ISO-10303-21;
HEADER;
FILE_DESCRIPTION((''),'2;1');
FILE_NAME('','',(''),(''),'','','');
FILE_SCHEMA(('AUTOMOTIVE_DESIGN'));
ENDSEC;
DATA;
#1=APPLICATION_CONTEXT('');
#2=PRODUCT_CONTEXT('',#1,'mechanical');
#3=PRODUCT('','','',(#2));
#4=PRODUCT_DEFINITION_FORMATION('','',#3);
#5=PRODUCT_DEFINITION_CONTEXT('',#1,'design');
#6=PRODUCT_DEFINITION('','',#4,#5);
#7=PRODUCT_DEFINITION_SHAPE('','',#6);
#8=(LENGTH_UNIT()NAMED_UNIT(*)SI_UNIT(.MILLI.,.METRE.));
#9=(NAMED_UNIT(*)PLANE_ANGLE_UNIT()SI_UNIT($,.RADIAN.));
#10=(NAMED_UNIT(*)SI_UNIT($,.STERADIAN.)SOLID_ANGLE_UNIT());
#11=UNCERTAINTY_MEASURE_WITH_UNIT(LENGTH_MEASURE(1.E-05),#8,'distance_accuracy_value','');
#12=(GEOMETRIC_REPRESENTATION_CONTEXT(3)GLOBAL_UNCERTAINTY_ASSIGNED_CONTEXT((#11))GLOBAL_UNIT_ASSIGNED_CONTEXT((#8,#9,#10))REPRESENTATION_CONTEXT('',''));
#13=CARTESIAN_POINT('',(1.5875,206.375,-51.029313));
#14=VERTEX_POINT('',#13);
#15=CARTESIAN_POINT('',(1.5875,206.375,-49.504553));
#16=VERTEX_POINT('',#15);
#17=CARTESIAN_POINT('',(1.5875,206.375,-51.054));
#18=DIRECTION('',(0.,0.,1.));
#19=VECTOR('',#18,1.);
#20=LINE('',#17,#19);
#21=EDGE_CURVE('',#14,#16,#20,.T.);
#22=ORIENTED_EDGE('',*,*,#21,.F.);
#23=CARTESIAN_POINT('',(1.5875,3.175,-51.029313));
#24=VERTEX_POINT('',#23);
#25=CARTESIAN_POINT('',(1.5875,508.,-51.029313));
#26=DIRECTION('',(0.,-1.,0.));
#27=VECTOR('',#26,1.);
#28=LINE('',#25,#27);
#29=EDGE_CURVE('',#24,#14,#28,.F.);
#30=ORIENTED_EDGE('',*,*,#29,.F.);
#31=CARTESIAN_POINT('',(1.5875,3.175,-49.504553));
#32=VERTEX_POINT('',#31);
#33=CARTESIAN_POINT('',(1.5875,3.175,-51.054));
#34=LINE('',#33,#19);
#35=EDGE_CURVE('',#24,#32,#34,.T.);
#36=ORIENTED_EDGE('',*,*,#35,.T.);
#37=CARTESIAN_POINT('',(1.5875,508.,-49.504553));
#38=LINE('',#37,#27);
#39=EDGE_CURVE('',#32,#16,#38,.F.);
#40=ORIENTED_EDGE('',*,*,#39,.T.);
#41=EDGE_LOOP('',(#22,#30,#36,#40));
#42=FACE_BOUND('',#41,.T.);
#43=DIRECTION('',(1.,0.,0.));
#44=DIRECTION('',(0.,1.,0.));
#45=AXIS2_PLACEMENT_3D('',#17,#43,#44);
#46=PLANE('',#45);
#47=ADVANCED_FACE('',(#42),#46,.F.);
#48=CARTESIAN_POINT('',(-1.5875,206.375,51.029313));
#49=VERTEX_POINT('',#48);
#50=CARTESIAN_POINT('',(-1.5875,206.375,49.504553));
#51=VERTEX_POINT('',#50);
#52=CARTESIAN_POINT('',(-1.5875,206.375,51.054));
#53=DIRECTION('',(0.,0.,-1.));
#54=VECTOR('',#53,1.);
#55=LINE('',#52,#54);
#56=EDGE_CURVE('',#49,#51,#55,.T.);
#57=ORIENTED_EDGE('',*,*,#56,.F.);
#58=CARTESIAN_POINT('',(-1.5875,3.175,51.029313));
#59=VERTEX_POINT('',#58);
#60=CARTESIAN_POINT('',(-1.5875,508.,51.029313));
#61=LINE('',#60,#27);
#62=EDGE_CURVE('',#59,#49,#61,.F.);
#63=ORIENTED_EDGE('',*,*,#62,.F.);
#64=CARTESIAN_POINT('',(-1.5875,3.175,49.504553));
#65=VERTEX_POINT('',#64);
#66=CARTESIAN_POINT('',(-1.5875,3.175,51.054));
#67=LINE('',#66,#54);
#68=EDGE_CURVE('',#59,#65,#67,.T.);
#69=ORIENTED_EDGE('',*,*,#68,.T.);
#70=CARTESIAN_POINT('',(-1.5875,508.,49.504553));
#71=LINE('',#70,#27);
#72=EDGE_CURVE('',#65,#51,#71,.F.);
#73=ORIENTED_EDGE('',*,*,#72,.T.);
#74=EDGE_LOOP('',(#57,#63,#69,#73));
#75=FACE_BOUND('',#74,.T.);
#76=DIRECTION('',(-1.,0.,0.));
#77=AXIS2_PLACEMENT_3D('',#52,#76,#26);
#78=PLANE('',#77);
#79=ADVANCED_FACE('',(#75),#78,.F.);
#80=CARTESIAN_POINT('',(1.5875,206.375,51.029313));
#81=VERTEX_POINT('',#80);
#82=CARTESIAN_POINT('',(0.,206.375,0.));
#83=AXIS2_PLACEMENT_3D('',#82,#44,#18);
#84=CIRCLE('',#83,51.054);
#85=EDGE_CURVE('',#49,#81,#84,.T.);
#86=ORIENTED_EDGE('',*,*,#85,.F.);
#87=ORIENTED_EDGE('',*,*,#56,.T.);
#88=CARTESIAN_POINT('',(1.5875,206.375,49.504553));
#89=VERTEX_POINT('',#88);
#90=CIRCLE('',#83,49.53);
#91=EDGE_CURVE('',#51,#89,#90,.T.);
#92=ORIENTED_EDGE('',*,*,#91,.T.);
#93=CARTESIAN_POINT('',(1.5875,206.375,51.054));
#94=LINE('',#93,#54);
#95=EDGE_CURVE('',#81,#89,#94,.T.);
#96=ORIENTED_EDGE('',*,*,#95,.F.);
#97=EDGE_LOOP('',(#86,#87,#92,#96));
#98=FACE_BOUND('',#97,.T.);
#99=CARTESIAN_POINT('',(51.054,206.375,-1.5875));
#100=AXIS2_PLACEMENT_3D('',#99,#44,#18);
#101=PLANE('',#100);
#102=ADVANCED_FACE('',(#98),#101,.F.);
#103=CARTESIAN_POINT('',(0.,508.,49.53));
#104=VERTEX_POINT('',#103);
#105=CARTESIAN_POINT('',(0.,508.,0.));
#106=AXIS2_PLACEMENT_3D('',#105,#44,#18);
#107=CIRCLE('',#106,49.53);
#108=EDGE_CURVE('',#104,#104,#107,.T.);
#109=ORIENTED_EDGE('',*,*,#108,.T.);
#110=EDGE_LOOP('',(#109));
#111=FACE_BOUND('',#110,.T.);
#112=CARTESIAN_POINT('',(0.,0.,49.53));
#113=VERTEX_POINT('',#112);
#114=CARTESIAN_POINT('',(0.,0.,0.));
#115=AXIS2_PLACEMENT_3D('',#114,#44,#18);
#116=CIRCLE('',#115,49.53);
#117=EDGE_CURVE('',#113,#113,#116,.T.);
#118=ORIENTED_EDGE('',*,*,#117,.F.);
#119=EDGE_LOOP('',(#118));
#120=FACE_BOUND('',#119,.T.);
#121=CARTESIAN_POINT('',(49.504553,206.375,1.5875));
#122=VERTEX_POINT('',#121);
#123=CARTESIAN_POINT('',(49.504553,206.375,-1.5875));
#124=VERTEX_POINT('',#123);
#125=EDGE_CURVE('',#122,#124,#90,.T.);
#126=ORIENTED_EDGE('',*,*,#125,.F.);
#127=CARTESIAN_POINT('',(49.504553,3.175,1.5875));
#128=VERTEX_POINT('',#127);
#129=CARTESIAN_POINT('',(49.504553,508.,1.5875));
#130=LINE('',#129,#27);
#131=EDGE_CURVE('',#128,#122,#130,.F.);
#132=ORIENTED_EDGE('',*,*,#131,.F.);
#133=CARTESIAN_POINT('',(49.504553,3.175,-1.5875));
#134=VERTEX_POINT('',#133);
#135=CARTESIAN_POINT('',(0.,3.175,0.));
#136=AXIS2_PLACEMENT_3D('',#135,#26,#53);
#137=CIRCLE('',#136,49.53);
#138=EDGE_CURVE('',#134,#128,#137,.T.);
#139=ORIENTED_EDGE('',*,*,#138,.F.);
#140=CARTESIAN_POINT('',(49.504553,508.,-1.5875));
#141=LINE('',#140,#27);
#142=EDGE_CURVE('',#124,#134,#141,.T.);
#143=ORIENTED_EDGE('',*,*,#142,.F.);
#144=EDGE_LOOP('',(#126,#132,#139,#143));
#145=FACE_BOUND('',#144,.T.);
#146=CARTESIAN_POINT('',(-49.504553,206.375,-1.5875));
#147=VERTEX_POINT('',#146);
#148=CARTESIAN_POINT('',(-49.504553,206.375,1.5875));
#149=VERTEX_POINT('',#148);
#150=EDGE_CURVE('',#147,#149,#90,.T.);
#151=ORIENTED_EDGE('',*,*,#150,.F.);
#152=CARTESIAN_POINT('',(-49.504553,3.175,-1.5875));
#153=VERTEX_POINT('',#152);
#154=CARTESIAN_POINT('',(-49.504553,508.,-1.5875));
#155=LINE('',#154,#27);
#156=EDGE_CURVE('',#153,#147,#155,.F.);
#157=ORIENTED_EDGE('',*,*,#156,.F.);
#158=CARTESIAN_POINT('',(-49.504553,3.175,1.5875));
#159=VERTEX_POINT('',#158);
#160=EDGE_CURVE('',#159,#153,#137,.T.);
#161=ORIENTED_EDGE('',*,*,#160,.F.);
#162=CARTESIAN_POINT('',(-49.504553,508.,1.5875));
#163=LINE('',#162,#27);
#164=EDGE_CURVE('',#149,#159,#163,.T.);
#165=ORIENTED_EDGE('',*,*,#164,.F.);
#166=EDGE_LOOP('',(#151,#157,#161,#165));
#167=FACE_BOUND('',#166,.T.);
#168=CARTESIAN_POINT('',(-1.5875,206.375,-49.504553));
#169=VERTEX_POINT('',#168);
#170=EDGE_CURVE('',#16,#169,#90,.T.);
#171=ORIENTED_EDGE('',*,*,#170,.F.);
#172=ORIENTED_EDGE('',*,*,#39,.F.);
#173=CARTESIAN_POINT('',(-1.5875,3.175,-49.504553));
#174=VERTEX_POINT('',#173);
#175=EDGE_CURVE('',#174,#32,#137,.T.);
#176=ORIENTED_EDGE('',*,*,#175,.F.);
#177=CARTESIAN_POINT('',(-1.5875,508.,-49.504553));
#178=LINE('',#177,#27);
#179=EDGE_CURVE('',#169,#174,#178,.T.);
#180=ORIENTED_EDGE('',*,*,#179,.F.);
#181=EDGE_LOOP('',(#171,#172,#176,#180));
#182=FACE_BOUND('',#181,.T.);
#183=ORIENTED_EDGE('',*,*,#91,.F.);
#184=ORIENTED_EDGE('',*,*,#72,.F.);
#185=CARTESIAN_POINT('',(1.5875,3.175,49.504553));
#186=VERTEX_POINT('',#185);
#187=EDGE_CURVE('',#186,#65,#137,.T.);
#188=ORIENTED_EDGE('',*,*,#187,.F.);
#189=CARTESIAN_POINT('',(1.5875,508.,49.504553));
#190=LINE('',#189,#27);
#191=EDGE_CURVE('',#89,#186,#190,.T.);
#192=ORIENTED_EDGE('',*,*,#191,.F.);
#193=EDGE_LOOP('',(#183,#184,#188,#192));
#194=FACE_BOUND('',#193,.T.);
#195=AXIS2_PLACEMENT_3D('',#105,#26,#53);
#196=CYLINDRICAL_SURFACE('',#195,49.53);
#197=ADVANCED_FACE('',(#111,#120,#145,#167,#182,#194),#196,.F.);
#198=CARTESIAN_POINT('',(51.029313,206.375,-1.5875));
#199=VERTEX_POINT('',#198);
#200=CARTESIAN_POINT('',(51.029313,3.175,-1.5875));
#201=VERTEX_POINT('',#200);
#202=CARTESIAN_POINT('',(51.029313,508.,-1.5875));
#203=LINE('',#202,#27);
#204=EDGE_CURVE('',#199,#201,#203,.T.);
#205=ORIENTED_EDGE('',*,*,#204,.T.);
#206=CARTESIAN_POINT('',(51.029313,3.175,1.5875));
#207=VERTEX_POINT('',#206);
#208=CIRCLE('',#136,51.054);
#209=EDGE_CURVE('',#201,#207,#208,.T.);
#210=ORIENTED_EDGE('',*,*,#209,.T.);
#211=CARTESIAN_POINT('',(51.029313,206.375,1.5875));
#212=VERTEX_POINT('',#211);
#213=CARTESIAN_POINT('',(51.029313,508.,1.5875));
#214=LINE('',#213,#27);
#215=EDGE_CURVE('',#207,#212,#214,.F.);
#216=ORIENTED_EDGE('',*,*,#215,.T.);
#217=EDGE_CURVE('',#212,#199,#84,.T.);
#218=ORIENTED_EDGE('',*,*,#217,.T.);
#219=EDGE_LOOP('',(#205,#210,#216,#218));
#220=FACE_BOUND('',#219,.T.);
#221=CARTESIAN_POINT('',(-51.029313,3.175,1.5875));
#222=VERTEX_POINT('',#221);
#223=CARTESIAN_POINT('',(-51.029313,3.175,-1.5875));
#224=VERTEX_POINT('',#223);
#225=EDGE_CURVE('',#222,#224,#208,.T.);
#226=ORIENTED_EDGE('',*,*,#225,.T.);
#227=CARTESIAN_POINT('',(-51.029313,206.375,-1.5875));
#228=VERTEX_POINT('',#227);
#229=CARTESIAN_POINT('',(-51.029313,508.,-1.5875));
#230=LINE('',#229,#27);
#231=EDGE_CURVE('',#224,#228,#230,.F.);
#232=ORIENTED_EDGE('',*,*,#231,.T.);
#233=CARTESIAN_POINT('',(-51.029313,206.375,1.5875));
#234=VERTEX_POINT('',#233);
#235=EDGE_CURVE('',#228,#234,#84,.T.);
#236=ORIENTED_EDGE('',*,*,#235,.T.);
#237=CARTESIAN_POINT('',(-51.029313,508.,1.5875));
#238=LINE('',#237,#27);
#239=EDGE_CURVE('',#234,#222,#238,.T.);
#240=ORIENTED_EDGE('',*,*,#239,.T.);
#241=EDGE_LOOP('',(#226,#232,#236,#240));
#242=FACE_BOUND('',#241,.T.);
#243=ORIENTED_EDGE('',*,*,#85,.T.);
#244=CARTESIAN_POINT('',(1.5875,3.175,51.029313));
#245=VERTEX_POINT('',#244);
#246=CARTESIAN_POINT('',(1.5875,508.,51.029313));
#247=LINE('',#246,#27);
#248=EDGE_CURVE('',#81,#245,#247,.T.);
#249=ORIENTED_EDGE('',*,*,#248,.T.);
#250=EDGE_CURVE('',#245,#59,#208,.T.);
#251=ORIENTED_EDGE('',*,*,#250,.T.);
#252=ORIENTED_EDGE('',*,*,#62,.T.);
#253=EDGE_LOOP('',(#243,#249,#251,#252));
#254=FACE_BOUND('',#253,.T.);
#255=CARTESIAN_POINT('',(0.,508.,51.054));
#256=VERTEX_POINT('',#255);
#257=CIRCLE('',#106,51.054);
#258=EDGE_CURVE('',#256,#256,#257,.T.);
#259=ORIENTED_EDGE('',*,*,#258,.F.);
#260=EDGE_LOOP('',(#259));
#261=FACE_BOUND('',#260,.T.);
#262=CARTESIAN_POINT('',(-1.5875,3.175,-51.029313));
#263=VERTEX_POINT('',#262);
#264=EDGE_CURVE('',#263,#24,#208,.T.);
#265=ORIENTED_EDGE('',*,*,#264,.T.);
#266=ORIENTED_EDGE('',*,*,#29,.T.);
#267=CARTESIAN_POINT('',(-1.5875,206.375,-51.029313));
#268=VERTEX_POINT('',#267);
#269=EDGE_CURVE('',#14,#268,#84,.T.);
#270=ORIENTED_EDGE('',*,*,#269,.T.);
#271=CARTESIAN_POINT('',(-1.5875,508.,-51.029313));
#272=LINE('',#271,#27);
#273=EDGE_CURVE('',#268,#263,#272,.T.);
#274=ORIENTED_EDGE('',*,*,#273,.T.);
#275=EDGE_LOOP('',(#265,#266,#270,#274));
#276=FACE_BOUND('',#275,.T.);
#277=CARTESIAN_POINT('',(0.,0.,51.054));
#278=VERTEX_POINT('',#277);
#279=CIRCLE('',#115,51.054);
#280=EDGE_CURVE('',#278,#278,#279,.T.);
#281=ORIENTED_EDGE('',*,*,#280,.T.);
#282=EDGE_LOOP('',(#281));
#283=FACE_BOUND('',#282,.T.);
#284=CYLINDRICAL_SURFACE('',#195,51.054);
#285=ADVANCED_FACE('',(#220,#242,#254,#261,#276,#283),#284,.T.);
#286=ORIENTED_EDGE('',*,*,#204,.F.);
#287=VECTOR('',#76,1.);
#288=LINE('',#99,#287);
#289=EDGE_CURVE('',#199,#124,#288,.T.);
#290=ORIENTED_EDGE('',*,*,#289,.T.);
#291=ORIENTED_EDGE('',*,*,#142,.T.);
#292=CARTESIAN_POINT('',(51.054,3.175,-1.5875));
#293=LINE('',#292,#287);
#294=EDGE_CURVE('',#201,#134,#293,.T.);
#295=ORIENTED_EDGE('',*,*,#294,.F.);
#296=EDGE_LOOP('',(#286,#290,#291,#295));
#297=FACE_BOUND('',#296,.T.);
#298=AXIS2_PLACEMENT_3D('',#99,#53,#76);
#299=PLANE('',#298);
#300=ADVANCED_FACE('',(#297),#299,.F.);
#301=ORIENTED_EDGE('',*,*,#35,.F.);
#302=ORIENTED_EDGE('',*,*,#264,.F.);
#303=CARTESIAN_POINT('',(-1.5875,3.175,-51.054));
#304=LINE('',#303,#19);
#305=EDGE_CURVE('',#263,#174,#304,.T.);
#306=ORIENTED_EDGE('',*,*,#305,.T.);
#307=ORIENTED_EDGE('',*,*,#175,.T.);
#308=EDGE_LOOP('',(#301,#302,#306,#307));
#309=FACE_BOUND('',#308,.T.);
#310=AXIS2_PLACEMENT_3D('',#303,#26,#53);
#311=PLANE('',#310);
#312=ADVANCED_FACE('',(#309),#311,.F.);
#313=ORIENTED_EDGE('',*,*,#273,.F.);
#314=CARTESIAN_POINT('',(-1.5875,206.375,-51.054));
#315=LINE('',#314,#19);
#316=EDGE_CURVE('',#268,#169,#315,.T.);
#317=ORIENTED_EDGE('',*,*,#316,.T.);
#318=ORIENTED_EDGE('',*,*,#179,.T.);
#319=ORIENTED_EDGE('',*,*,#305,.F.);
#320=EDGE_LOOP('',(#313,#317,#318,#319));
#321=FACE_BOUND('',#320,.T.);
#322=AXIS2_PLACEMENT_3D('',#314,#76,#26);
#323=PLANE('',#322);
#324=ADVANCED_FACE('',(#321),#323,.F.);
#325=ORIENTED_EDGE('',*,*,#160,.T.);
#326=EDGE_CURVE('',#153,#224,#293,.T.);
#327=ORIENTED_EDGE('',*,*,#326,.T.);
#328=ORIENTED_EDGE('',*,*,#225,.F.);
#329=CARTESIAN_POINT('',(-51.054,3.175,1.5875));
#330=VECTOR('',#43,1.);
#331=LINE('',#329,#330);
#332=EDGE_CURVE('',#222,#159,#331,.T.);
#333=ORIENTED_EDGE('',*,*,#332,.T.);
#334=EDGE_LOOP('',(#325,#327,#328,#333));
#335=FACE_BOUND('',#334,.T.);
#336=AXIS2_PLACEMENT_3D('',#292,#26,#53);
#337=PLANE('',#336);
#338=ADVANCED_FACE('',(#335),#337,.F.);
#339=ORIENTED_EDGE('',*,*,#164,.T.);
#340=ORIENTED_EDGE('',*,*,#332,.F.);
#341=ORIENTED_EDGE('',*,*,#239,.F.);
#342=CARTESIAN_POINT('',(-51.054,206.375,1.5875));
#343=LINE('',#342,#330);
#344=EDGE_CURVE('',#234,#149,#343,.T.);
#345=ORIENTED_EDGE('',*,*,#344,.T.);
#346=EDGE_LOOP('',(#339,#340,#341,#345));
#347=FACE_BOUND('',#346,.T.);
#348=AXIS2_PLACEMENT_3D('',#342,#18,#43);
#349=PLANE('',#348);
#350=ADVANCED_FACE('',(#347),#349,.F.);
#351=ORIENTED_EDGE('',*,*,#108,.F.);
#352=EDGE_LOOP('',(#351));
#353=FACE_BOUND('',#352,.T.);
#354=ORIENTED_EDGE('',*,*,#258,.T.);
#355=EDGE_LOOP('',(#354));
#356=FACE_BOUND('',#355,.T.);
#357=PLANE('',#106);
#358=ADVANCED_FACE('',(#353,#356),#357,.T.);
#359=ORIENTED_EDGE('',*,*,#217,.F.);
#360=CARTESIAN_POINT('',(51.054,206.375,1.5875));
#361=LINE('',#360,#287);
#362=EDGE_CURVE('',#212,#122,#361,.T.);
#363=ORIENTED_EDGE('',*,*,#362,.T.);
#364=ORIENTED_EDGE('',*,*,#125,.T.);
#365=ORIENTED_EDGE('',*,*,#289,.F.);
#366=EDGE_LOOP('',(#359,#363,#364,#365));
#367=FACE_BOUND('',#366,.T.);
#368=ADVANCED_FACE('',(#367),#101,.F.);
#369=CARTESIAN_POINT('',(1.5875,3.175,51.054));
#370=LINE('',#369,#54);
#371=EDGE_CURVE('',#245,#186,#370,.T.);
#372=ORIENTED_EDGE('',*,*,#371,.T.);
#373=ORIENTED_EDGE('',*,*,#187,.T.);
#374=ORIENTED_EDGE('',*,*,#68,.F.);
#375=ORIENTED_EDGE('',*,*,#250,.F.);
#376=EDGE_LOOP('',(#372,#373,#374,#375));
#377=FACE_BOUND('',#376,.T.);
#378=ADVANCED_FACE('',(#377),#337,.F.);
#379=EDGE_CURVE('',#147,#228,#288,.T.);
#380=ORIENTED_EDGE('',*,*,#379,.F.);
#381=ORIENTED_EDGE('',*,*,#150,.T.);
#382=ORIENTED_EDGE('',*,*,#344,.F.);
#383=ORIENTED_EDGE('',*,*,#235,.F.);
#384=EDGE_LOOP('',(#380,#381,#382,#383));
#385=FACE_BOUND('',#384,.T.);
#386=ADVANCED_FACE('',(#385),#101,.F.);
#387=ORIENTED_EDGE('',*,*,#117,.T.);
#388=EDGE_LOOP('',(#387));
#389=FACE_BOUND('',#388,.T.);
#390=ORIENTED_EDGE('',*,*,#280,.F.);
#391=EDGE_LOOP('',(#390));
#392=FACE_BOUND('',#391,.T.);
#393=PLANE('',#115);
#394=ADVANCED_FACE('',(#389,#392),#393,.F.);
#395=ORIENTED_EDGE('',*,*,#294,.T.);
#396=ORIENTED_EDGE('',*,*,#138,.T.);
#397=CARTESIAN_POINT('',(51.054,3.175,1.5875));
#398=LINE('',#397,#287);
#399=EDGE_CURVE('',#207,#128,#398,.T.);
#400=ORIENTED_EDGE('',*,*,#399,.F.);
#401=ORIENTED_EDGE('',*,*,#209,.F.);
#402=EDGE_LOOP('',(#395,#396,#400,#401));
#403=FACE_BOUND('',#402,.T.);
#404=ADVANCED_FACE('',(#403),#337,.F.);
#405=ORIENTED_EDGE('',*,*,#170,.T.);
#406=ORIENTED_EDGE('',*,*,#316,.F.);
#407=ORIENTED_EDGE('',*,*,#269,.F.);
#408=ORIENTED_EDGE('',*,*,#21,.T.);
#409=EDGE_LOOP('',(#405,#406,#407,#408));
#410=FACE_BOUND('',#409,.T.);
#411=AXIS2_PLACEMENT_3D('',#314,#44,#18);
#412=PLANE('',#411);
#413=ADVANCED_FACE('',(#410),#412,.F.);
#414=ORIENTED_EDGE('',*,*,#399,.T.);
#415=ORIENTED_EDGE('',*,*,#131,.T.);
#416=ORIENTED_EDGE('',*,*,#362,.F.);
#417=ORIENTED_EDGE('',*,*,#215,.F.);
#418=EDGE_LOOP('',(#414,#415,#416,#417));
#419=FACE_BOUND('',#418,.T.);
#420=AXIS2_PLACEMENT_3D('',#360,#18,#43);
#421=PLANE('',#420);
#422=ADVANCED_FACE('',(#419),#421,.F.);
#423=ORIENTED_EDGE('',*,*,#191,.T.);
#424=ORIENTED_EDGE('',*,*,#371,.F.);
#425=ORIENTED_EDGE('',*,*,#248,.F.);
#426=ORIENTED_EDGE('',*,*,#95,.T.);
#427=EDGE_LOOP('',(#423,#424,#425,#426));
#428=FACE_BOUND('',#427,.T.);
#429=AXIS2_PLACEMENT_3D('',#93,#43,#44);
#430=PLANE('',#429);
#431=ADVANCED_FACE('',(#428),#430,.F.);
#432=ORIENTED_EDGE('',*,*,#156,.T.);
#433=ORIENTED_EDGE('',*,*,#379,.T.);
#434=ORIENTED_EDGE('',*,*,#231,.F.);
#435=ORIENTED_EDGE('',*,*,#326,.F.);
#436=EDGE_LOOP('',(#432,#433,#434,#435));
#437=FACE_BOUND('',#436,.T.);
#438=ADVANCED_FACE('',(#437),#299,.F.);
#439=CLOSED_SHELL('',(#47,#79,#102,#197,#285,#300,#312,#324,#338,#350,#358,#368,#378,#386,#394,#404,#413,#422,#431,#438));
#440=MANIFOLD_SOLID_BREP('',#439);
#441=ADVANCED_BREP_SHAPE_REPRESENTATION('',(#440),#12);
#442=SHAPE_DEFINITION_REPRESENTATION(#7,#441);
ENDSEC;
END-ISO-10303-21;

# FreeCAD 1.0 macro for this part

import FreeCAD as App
import Part
import Sketcher

V = App.Vector
Q = App.Units.Quantity


def add_polygon(sketch, points):
    """Adds a closed chain of lines whose ends are joined by coincident constraints."""
    first, n = sketch.GeometryCount, len(points)
    for a, b in zip(points, points[1:] + points[:1]):
        sketch.addGeometry(Part.LineSegment(App.Vector(*a, 0), App.Vector(*b, 0)), False)
    for i in range(n):
        sketch.addConstraint(Sketcher.Constraint("Coincident", first + i, 2, first + (i + 1) % n, 1))

doc = App.newDocument("Part")
body = doc.addObject("PartDesign::Body", "Body")

# Sketch on XZ plane
sketch1 = body.newObject("Sketcher::SketchObject", "Sketch")
sketch1.AttachmentSupport = (doc.getObject("XZ_Plane"), [""])
sketch1.MapMode = "FlatFace"
sketch1.addGeometry([
    Part.Circle(V(0, 0, 0), V(0, 0, 1), 51.054),
    Part.Circle(V(0, 0, 0), V(0, 0, 1), 49.53),
], False)
sketch1.addConstraint([
    Sketcher.Constraint("Coincident", 0, 3, -1, 1),
    Sketcher.Constraint("Coincident", 1, 3, -1, 1),
    Sketcher.Constraint("Diameter", 1, Q("3.9 in")),
    Sketcher.Constraint("Diameter", 0, Q("4.02 in")),
])
pad1 = body.newObject("PartDesign::Pad", "Pad")
pad1.Profile = sketch1
pad1.Length = Q("20 in")
pad1.Reversed = True

# Sketch on XY plane
sketch2 = body.newObject("Sketcher::SketchObject", "Sketch001")
sketch2.AttachmentSupport = (doc.getObject("XY_Plane"), [""])
sketch2.MapMode = "FlatFace"
add_polygon(sketch2, [(-1.5875, 206.375), (-1.5875, 3.175), (1.5875, 3.175), (1.5875, 206.375)])  # lines 0-3
sketch2.addConstraint([
    Sketcher.Constraint("Vertical", 0),
    Sketcher.Constraint("Horizontal", 1),
    Sketcher.Constraint("Vertical", 2),
    Sketcher.Constraint("Horizontal", 3),
    Sketcher.Constraint("DistanceY", 0, 2, 0, 1, Q("8 in")),
    Sketcher.Constraint("DistanceX", 1, 1, 1, 2, Q("0.125 in")),
    Sketcher.Constraint("DistanceX", 0, 2, -1, 1, Q("0.0625 in")),
    Sketcher.Constraint("DistanceY", -1, 1, 0, 2, Q("0.125 in")),
])
pocket1 = body.newObject("PartDesign::Pocket", "Pocket")
pocket1.Profile = sketch2
pocket1.Type = "ThroughAll"
doc.recompute()

polarpattern = body.newObject("PartDesign::PolarPattern", "PolarPattern")
polarpattern.Originals = [pocket1]
polarpattern.Axis = (doc.getObject("Y_Axis"), [""])
polarpattern.Angle = 360
polarpattern.Occurrences = 4
body.Tip = polarpattern

doc.recompute()
